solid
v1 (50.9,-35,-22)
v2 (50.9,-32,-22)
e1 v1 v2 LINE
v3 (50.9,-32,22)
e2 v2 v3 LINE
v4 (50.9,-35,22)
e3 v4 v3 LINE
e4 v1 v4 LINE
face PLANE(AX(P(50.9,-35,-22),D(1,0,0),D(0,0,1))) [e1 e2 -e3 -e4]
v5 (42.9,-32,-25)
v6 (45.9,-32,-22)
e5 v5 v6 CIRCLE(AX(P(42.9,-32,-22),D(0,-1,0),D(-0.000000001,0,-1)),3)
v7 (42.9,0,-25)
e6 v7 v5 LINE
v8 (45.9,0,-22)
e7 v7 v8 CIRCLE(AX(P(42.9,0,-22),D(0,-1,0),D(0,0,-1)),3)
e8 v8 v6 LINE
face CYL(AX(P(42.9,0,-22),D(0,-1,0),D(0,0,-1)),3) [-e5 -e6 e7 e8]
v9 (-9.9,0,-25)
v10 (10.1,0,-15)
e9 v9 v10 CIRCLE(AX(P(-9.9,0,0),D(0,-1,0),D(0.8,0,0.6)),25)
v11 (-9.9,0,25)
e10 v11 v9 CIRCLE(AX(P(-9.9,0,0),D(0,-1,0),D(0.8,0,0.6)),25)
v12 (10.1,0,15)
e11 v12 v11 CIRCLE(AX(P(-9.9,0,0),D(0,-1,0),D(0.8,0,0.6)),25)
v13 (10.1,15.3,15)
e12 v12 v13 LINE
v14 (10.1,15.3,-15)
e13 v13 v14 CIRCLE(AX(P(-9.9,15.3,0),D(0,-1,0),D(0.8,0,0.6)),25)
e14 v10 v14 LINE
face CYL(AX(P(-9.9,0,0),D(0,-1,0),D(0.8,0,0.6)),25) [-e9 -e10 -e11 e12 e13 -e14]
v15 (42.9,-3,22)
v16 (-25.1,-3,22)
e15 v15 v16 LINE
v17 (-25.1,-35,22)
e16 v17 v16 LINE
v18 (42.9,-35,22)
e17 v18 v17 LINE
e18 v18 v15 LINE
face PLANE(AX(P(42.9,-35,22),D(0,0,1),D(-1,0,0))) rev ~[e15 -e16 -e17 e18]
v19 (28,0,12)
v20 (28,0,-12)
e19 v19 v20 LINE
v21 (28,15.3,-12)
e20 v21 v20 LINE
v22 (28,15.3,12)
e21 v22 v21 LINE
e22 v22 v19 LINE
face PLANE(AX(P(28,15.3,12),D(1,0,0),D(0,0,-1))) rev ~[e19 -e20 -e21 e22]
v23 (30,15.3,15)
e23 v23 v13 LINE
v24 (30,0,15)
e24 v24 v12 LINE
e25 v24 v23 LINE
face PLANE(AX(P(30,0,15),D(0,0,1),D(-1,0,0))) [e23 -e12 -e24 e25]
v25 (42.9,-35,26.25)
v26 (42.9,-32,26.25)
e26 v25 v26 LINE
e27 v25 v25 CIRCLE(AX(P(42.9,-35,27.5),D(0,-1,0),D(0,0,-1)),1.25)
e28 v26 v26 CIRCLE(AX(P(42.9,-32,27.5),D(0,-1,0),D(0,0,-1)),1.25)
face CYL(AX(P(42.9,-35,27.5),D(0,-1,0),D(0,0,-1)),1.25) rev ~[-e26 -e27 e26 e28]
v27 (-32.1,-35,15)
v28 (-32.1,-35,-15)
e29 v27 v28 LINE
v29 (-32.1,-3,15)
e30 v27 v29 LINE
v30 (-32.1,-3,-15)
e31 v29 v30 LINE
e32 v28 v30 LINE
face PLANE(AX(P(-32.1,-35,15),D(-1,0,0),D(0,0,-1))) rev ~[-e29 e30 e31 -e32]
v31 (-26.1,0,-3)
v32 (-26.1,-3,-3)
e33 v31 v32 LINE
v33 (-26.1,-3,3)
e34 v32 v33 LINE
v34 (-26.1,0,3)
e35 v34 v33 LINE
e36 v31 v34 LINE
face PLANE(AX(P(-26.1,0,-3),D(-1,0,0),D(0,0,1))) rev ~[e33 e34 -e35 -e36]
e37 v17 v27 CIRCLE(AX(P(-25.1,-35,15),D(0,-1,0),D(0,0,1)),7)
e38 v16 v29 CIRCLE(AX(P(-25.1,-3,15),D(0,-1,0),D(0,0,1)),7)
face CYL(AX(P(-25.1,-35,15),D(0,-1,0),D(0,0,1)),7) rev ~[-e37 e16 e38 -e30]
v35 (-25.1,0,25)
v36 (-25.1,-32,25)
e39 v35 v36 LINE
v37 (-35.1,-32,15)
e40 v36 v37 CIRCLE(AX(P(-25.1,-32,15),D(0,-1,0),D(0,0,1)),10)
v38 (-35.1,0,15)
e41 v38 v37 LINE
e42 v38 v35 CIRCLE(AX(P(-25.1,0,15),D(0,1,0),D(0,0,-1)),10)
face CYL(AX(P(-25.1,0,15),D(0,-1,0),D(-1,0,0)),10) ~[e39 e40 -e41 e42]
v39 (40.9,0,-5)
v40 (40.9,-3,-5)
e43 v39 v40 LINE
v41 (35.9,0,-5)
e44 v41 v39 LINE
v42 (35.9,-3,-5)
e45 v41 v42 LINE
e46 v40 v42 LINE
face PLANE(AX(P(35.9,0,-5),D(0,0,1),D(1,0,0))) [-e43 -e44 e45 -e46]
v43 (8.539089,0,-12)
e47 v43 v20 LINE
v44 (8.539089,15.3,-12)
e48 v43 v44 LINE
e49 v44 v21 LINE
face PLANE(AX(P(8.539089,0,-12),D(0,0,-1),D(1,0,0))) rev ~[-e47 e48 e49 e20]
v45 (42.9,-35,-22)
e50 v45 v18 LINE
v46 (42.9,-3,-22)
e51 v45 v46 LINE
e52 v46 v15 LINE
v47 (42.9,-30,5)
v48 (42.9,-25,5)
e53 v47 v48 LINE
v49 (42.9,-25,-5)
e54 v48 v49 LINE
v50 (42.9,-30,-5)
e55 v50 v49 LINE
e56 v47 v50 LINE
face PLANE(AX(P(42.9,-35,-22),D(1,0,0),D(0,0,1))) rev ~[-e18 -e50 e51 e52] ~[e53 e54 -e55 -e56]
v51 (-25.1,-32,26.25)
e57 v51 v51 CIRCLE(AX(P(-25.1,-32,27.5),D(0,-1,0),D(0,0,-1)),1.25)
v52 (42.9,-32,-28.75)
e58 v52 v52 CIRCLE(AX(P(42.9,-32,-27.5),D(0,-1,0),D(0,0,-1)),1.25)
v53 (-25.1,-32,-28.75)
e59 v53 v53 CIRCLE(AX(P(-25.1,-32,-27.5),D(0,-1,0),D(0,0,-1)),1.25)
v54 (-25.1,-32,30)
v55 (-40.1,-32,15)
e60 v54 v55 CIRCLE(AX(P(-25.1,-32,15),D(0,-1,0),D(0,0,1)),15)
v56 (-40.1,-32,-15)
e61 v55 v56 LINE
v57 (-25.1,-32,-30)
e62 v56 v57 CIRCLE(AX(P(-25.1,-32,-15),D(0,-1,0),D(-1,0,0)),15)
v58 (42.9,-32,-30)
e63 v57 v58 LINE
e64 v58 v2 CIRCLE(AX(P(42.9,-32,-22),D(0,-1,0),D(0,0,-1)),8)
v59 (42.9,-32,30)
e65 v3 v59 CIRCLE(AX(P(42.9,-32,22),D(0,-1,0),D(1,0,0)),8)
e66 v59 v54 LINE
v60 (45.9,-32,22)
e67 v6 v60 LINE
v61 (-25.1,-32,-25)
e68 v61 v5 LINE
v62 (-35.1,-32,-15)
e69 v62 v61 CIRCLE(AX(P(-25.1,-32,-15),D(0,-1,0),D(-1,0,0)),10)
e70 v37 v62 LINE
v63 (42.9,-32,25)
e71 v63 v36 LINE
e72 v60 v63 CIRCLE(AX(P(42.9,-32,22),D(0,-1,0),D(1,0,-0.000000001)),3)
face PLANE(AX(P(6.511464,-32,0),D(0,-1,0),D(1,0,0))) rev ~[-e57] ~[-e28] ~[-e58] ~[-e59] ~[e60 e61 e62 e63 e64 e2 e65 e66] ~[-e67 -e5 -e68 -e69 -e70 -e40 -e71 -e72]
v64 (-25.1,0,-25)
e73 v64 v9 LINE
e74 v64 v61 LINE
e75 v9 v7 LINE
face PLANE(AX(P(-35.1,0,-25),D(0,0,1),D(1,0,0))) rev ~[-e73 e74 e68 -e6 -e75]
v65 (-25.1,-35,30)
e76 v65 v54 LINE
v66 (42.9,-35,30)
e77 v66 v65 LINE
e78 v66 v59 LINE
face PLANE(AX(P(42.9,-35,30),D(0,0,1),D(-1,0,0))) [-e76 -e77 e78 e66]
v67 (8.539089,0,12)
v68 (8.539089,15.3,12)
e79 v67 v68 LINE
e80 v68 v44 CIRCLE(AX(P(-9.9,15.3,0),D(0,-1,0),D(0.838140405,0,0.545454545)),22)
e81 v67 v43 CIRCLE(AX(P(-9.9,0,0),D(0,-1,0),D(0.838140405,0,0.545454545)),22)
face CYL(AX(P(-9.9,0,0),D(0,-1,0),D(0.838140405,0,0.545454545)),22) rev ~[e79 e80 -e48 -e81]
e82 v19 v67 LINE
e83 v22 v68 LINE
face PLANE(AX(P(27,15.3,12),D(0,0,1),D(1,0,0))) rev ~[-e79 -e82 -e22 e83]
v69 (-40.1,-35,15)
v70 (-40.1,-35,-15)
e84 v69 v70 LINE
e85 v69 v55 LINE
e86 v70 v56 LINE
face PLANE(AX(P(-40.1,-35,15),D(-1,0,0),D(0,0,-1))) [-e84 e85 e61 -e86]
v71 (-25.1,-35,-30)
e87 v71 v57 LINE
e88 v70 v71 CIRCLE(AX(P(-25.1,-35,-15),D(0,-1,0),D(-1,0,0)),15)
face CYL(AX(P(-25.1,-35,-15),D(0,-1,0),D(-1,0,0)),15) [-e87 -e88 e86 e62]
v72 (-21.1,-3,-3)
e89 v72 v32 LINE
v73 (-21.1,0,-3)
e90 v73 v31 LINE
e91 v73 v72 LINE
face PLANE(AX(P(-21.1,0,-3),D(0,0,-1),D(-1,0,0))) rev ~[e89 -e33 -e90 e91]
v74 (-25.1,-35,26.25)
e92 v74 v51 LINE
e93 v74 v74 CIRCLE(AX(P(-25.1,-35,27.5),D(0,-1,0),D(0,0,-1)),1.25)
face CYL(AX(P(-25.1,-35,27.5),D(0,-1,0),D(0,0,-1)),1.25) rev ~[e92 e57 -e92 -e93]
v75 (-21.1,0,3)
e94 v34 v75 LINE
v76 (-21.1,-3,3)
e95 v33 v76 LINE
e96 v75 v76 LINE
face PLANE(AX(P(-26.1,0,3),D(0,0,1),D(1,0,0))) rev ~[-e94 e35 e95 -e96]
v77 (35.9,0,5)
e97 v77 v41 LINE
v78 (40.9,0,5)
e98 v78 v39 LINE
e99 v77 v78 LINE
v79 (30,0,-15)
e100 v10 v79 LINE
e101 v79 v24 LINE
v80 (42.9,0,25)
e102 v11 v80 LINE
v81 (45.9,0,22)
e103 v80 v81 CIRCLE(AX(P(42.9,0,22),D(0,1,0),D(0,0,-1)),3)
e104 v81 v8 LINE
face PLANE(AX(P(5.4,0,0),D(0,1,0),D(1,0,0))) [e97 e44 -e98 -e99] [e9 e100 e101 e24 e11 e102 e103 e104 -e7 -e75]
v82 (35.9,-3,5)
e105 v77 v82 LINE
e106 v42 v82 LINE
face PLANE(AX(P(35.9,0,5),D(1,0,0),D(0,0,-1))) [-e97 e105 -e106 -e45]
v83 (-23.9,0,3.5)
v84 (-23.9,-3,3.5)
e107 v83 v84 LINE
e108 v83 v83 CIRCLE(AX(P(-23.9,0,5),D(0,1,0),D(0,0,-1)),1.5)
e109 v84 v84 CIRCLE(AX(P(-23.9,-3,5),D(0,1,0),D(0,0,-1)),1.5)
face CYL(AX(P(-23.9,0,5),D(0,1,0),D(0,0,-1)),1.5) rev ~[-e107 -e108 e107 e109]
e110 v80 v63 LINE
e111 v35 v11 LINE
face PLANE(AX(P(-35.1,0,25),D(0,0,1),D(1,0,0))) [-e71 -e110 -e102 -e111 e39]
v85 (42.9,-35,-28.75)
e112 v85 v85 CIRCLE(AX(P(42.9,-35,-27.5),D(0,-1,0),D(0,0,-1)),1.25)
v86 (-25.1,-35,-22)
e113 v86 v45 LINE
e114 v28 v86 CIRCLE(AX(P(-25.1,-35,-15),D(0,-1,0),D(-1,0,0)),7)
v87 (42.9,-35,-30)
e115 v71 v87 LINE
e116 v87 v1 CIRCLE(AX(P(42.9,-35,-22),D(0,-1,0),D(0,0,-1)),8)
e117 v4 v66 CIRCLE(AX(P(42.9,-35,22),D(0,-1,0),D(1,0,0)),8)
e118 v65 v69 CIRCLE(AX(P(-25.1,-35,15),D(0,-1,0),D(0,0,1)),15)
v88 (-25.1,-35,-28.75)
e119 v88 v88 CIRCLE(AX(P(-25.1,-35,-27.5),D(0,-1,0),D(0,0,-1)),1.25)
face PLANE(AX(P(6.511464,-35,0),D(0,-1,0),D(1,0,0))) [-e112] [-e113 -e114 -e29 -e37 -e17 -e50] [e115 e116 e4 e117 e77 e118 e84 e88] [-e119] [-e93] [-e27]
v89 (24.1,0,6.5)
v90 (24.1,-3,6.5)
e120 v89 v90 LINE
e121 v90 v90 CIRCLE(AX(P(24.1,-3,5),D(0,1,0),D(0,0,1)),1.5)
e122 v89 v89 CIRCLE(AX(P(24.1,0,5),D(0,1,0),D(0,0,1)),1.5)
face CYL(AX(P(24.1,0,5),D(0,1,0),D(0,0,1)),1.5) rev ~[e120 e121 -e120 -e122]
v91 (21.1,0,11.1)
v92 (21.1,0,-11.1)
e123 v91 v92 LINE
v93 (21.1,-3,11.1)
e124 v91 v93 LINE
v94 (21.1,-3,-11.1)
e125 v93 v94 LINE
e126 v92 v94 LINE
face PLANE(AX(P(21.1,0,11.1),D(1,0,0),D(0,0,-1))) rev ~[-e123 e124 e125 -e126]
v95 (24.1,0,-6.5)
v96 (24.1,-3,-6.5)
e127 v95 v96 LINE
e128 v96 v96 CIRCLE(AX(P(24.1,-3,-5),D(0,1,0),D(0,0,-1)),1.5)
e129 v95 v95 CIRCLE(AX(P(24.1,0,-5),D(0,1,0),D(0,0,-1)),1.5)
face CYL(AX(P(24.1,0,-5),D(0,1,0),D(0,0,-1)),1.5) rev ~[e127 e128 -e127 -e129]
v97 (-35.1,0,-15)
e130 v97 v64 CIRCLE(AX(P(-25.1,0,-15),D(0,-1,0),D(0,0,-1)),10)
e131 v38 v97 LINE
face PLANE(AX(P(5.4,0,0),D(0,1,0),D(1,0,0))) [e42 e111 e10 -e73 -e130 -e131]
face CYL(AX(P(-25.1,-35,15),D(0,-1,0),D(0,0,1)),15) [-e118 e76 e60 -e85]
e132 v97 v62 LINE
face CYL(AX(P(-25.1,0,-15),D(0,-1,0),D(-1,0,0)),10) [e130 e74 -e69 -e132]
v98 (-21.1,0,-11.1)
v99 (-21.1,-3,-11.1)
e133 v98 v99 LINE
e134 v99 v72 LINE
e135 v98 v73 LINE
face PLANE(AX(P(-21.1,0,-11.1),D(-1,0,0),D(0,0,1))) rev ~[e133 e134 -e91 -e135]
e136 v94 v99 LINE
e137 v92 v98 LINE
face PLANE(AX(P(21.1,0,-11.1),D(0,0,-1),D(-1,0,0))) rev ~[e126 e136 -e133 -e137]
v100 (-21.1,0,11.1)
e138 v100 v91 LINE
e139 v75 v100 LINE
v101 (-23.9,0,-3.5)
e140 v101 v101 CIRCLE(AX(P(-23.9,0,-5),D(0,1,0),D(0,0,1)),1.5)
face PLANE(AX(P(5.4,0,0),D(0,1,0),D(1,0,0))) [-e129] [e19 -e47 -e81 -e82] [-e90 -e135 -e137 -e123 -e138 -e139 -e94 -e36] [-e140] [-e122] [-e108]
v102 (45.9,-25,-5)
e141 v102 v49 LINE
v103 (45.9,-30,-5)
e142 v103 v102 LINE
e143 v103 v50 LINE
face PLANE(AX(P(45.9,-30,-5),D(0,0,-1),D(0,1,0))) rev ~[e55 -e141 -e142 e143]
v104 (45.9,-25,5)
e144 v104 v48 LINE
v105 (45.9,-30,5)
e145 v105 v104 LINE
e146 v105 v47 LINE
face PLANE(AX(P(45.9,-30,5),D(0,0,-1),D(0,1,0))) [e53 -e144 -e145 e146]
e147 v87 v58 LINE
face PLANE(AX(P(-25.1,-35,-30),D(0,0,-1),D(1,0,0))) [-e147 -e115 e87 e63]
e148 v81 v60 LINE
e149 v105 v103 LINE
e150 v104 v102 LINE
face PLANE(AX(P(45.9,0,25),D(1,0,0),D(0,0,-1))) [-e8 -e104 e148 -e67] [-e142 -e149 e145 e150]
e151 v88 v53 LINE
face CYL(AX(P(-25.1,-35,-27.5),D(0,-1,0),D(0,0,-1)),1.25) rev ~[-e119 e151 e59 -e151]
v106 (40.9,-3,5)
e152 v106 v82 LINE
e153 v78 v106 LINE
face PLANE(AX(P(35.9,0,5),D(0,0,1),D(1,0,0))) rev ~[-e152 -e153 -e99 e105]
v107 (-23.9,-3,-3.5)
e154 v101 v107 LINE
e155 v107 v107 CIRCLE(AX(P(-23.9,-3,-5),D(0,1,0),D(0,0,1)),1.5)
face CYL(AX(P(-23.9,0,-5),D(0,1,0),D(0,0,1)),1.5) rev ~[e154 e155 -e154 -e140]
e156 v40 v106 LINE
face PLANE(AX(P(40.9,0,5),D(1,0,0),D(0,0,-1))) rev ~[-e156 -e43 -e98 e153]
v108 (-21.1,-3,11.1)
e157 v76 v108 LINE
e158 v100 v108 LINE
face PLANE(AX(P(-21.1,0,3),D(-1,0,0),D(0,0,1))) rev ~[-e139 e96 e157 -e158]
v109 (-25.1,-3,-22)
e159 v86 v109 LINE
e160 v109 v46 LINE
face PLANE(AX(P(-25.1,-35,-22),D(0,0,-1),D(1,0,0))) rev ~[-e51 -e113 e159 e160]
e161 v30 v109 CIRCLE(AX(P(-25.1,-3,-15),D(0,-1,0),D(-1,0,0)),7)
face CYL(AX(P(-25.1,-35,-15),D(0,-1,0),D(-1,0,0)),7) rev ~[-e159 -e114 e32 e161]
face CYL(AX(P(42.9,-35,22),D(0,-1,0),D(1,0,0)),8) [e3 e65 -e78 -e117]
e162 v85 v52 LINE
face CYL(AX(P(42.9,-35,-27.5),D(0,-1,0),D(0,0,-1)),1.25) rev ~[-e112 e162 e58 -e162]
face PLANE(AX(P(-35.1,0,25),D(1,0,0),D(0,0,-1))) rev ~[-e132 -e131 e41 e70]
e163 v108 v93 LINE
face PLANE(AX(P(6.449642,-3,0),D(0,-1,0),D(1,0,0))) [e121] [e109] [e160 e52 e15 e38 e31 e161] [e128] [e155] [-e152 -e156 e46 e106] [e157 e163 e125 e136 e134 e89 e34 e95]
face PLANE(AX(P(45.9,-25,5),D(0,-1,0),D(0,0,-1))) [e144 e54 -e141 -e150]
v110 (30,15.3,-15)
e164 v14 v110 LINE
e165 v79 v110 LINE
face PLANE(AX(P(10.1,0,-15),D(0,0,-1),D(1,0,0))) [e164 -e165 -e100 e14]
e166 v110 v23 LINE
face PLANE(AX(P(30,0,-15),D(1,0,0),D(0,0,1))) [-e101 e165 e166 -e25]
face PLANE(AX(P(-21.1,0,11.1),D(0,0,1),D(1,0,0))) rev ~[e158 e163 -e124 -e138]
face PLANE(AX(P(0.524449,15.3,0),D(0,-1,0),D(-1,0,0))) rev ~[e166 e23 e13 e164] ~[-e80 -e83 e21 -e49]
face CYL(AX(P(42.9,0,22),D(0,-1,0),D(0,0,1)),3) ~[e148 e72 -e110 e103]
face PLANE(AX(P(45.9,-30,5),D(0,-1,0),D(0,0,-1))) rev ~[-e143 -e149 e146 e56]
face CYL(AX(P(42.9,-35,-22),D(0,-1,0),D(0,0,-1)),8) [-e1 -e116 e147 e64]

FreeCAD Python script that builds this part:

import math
import FreeCAD as App
import Part
import Sketcher
Q = App.Units.Quantity


def edges_at(feature, points):
    """Names of the edges that pass closest to the given points."""
    edges = feature.Shape.Edges
    near = lambda p: min(range(len(edges)), key=lambda i: edges[i].distToShape(Part.Vertex(*p))[0])
    return sorted({f"Edge{near(p) + 1}" for p in points})

doc = App.newDocument("Part")
params = doc.addObject("Spreadsheet::Sheet", "Params")
for row, (alias, value) in enumerate([
    ("sketch1_diameter", "3 mm"),
    ("sketch1_width", "81 mm"),
    ("sketch1_width2", "5 mm"),
    ("sketch1_height", "50 mm"),
    ("sketch1_height2", "6 mm"),
    ("pad1_length", "35 mm"),
    ("fillet_radius", "10 mm"),
    ("fillet2_radius", "3 mm"),
    ("sketch2_radius", "7 mm"),
    ("sketch2_width", "68 mm"),
    ("sketch2_height", "30 mm"),
    ("pocket1_length", "32 mm"),
    ("sketch3_radius", "25 mm"),
    ("sketch3_radius2", "22 mm"),
    ("sketch3_height", "30 mm"),
    ("sketch3_height2", "24 mm"),
    ("sketch3_width", "19.9 mm"),
    ("pad2_length", "15.3 mm"),
    ("sketch4_width", "1 mm"),
    ("sketch4_height", "24 mm"),
    ("pocket2_length", "15.3 mm"),
    ("sketch5_width", "5 mm"),
    ("sketch5_height", "10 mm"),
    ("pocket3_length", "16.3 mm"),
    ("sketch6_radius", "15 mm"),
    ("sketch6_radius2", "8 mm"),
    ("sketch6_radius3", "3 mm"),
    ("sketch6_diameter", "2.5 mm"),
    ("sketch6_width", "68 mm"),
    ("pad3_length", "3 mm"),
    ("sketch7_width", "5 mm"),
    ("sketch7_height", "10 mm"),
    ("pocket4_length", "10 mm"),
], start=1):
    params.set(f"A{row}", alias)
    params.set(f"B{row}", "=" + value)
    params.setAlias(f"B{row}", alias)

body = doc.addObject("PartDesign::Body", "Body")

sketch1 = body.newObject("Sketcher::SketchObject", "Sketch")
sketch1.AttachmentSupport = (doc.getObject("XZ_Plane"), [""])
sketch1.MapMode = "FlatFace"
sketch1.addGeometry(Part.LineSegment(App.Vector(-35.1, -25, 0), App.Vector(-35.1, 25, 0)), False)
sketch1.addGeometry(Part.LineSegment(App.Vector(-35.1, 25, 0), App.Vector(45.9, 25, 0)), False)
sketch1.addGeometry(Part.LineSegment(App.Vector(45.9, 25, 0), App.Vector(45.9, -25, 0)), False)
sketch1.addGeometry(Part.LineSegment(App.Vector(45.9, -25, 0), App.Vector(-35.1, -25, 0)), False)
sketch1.addGeometry(Part.Circle(App.Vector(-23.9, 5, 0), App.Vector(0, 0, 1), 1.5), False)
sketch1.addGeometry(Part.Circle(App.Vector(24.1, 5, 0), App.Vector(0, 0, 1), 1.5), False)
sketch1.addGeometry(Part.Circle(App.Vector(-23.9, -5, 0), App.Vector(0, 0, 1), 1.5), False)
sketch1.addGeometry(Part.LineSegment(App.Vector(-26.1, -3, 0), App.Vector(-21.1, -3, 0)), False)
sketch1.addGeometry(Part.LineSegment(App.Vector(-21.1, -3, 0), App.Vector(-21.1, -11.1, 0)), False)
sketch1.addGeometry(Part.LineSegment(App.Vector(-21.1, -11.1, 0), App.Vector(21.1, -11.1, 0)), False)
sketch1.addGeometry(Part.LineSegment(App.Vector(21.1, -11.1, 0), App.Vector(21.1, 11.1, 0)), False)
sketch1.addGeometry(Part.LineSegment(App.Vector(21.1, 11.1, 0), App.Vector(-21.1, 11.1, 0)), False)
sketch1.addGeometry(Part.LineSegment(App.Vector(-21.1, 11.1, 0), App.Vector(-21.1, 3, 0)), False)
sketch1.addGeometry(Part.LineSegment(App.Vector(-21.1, 3, 0), App.Vector(-26.1, 3, 0)), False)
sketch1.addGeometry(Part.LineSegment(App.Vector(-26.1, 3, 0), App.Vector(-26.1, -3, 0)), False)
sketch1.addGeometry(Part.Circle(App.Vector(24.1, -5, 0), App.Vector(0, 0, 1), 1.5), False)
sketch1.addConstraint(Sketcher.Constraint("Coincident", 0, 2, 1, 1))
sketch1.addConstraint(Sketcher.Constraint("Coincident", 1, 2, 2, 1))
sketch1.addConstraint(Sketcher.Constraint("Coincident", 2, 2, 3, 1))
sketch1.addConstraint(Sketcher.Constraint("Coincident", 3, 2, 0, 1))
sketch1.addConstraint(Sketcher.Constraint("Coincident", 7, 2, 8, 1))
sketch1.addConstraint(Sketcher.Constraint("Coincident", 8, 2, 9, 1))
sketch1.addConstraint(Sketcher.Constraint("Coincident", 9, 2, 10, 1))
sketch1.addConstraint(Sketcher.Constraint("Coincident", 10, 2, 11, 1))
sketch1.addConstraint(Sketcher.Constraint("Coincident", 11, 2, 12, 1))
sketch1.addConstraint(Sketcher.Constraint("Coincident", 12, 2, 13, 1))
sketch1.addConstraint(Sketcher.Constraint("Coincident", 13, 2, 14, 1))
sketch1.addConstraint(Sketcher.Constraint("Coincident", 14, 2, 7, 1))
sketch1.addConstraint(Sketcher.Constraint("Vertical", 0))
sketch1.addConstraint(Sketcher.Constraint("Horizontal", 1))
sketch1.addConstraint(Sketcher.Constraint("Vertical", 2))
sketch1.addConstraint(Sketcher.Constraint("Horizontal", 3))
sketch1.addConstraint(Sketcher.Constraint("Horizontal", 7))
sketch1.addConstraint(Sketcher.Constraint("Vertical", 8))
sketch1.addConstraint(Sketcher.Constraint("Horizontal", 9))
sketch1.addConstraint(Sketcher.Constraint("Vertical", 10))
sketch1.addConstraint(Sketcher.Constraint("Horizontal", 11))
sketch1.addConstraint(Sketcher.Constraint("Vertical", 12))
sketch1.addConstraint(Sketcher.Constraint("Horizontal", 13))
sketch1.addConstraint(Sketcher.Constraint("Vertical", 14))
sketch1.addConstraint(Sketcher.Constraint("Equal", 4, 5))
sketch1.addConstraint(Sketcher.Constraint("Equal", 5, 6))
sketch1.addConstraint(Sketcher.Constraint("Equal", 6, 15))
sketch1.addConstraint(Sketcher.Constraint("Symmetric", 8, 2, 10, 2, -1, 1))
sketch1.addConstraint(Sketcher.Constraint("Symmetric", 4, 3, 6, 3, -1))
sketch1.addConstraint(Sketcher.Constraint("Symmetric", 5, 3, 15, 3, -1))
sketch1.addConstraint(Sketcher.Constraint("Symmetric", 7, 2, 12, 2, -1))
sketch1.addConstraint(Sketcher.Constraint("Horizontal", 4, 3, 5, 3))
sketch1.addConstraint(Sketcher.Constraint("Diameter", 4, Q("3 mm")))
sketch1.addConstraint(Sketcher.Constraint("DistanceX", 1, 1, 1, 2, Q("81 mm")))
sketch1.addConstraint(Sketcher.Constraint("DistanceX", 7, 1, 7, 2, Q("5 mm")))
sketch1.addConstraint(Sketcher.Constraint("DistanceY", 0, 1, 0, 2, Q("50 mm")))
sketch1.addConstraint(Sketcher.Constraint("DistanceY", 14, 2, 14, 1, Q("6 mm")))
sketch1.addConstraint(Sketcher.Constraint("DistanceX", 9, 1, 9, 2, Q("42.2 mm")))
sketch1.addConstraint(Sketcher.Constraint("DistanceY", 8, 2, 8, 1, Q("8.1 mm")))
sketch1.addConstraint(Sketcher.Constraint("DistanceY", -1, 1, 4, 3, Q("5 mm")))
sketch1.addConstraint(Sketcher.Constraint("DistanceY", -1, 1, 0, 2, Q("25 mm")))
sketch1.addConstraint(Sketcher.Constraint("DistanceX", 4, 3, 5, 3, Q("48 mm")))
sketch1.addConstraint(Sketcher.Constraint("DistanceX", 3, 2, 7, 2, Q("14 mm")))
sketch1.addConstraint(Sketcher.Constraint("DistanceX", 9, 2, 15, 3, Q("3 mm")))
sketch1.setExpression("Constraints[32]", "Params.sketch1_diameter")
sketch1.setExpression("Constraints[33]", "Params.sketch1_width")
sketch1.setExpression("Constraints[34]", "Params.sketch1_width2")
sketch1.setExpression("Constraints[35]", "Params.sketch1_height")
sketch1.setExpression("Constraints[36]", "Params.sketch1_height2")
pad1 = body.newObject("PartDesign::Pad", "Pad")
pad1.Profile = sketch1
pad1.setExpression("Length", "Params.pad1_length")
doc.recompute()

fillet = body.newObject("PartDesign::Fillet", "Fillet")
fillet.Base = (pad1, edges_at(pad1, [(-35.1, -17.5, 25), (-35.1, -17.5, -25)]))
fillet.setExpression("Radius", "Params.fillet_radius")
doc.recompute()

fillet2 = body.newObject("PartDesign::Fillet", "Fillet001")
fillet2.Base = (fillet, edges_at(fillet, [(45.9, -17.5, 25), (45.9, -17.5, -25)]))
fillet2.setExpression("Radius", "Params.fillet2_radius")

sketch2 = body.newObject("Sketcher::SketchObject", "Sketch001")
sketch2.AttachmentSupport = (doc.getObject("XZ_Plane"), [""])
sketch2.MapMode = "FlatFace"
sketch2.AttachmentOffset = App.Placement(App.Vector(0, 0, 35), App.Rotation())
sketch2.addGeometry(Part.LineSegment(App.Vector(43, 22, 0), App.Vector(-25, 22, 0)), False)
sketch2.addGeometry(Part.ArcOfCircle(Part.Circle(App.Vector(-25, 15, 0), App.Vector(0, 0, 1), 7), math.radians(90), math.radians(180)), False)
sketch2.addGeometry(Part.LineSegment(App.Vector(-32, 15, 0), App.Vector(-32, -15, 0)), False)
sketch2.addGeometry(Part.ArcOfCircle(Part.Circle(App.Vector(-25, -15, 0), App.Vector(0, 0, 1), 7), math.radians(-180), math.radians(-90)), False)
sketch2.addGeometry(Part.LineSegment(App.Vector(-25, -22, 0), App.Vector(43, -22, 0)), False)
sketch2.addGeometry(Part.LineSegment(App.Vector(43, -22, 0), App.Vector(43, 22, 0)), False)
sketch2.addConstraint(Sketcher.Constraint("Tangent", 0, 2, 1, 1))
sketch2.addConstraint(Sketcher.Constraint("Tangent", 1, 2, 2, 1))
sketch2.addConstraint(Sketcher.Constraint("Tangent", 2, 2, 3, 1))
sketch2.addConstraint(Sketcher.Constraint("Tangent", 3, 2, 4, 1))
sketch2.addConstraint(Sketcher.Constraint("Coincident", 4, 2, 5, 1))
sketch2.addConstraint(Sketcher.Constraint("Coincident", 5, 2, 0, 1))
sketch2.addConstraint(Sketcher.Constraint("Horizontal", 0))
sketch2.addConstraint(Sketcher.Constraint("Vertical", 2))
sketch2.addConstraint(Sketcher.Constraint("Horizontal", 4))
sketch2.addConstraint(Sketcher.Constraint("Vertical", 5))
sketch2.addConstraint(Sketcher.Constraint("Equal", 1, 3))
sketch2.addConstraint(Sketcher.Constraint("Radius", 1, Q("7 mm")))
sketch2.addConstraint(Sketcher.Constraint("DistanceX", 0, 2, 0, 1, Q("68 mm")))
sketch2.addConstraint(Sketcher.Constraint("DistanceY", 2, 2, 2, 1, Q("30 mm")))
sketch2.addConstraint(Sketcher.Constraint("DistanceY", -1, 1, 1, 3, Q("15 mm")))
sketch2.addConstraint(Sketcher.Constraint("DistanceX", 1, 3, -1, 1, Q("25.1 mm")))
sketch2.setExpression("Constraints[11]", "Params.sketch2_radius")
sketch2.setExpression("Constraints[12]", "Params.sketch2_width")
sketch2.setExpression("Constraints[13]", "Params.sketch2_height")
pocket1 = body.newObject("PartDesign::Pocket", "Pocket")
pocket1.Profile = sketch2
pocket1.setExpression("Length", "Params.pocket1_length")

sketch3 = body.newObject("Sketcher::SketchObject", "Sketch002")
sketch3.AttachmentSupport = (doc.getObject("XZ_Plane"), [""])
sketch3.MapMode = "FlatFace"
sketch3.addGeometry(Part.LineSegment(App.Vector(30, -15, 0), App.Vector(10, -15, 0)), False)
sketch3.addGeometry(Part.ArcOfCircle(Part.Circle(App.Vector(-10, 0, 0), App.Vector(0, 0, 1), 25), math.radians(37), math.radians(323)), False)
sketch3.addGeometry(Part.LineSegment(App.Vector(10, 15, 0), App.Vector(30, 15, 0)), False)
sketch3.addGeometry(Part.LineSegment(App.Vector(30, 15, 0), App.Vector(30, -15, 0)), False)
sketch3.addGeometry(Part.LineSegment(App.Vector(9, -12, 0), App.Vector(27, -12, 0)), False)
sketch3.addGeometry(Part.LineSegment(App.Vector(27, -12, 0), App.Vector(27, 12, 0)), False)
sketch3.addGeometry(Part.LineSegment(App.Vector(27, 12, 0), App.Vector(9, 12, 0)), False)
sketch3.addGeometry(Part.ArcOfCircle(Part.Circle(App.Vector(-10, 0, 0), App.Vector(0, 0, 1), 22), math.radians(33), math.radians(327)), False)
sketch3.addConstraint(Sketcher.Constraint("Coincident", 0, 2, 1, 2))
sketch3.addConstraint(Sketcher.Constraint("Coincident", 1, 1, 2, 1))
sketch3.addConstraint(Sketcher.Constraint("Coincident", 2, 2, 3, 1))
sketch3.addConstraint(Sketcher.Constraint("Coincident", 3, 2, 0, 1))
sketch3.addConstraint(Sketcher.Constraint("Coincident", 4, 2, 5, 1))
sketch3.addConstraint(Sketcher.Constraint("Coincident", 5, 2, 6, 1))
sketch3.addConstraint(Sketcher.Constraint("Coincident", 6, 2, 7, 1))
sketch3.addConstraint(Sketcher.Constraint("Coincident", 7, 2, 4, 1))
sketch3.addConstraint(Sketcher.Constraint("Horizontal", 0))
sketch3.addConstraint(Sketcher.Constraint("Horizontal", 2))
sketch3.addConstraint(Sketcher.Constraint("Vertical", 3))
sketch3.addConstraint(Sketcher.Constraint("Horizontal", 4))
sketch3.addConstraint(Sketcher.Constraint("Vertical", 5))
sketch3.addConstraint(Sketcher.Constraint("Horizontal", 6))
sketch3.addConstraint(Sketcher.Constraint("Coincident", 7, 3, 1, 3))
sketch3.addConstraint(Sketcher.Constraint("Symmetric", 0, 2, 1, 1, -1))
sketch3.addConstraint(Sketcher.Constraint("Vertical", 6, 2, 7, 2))
sketch3.addConstraint(Sketcher.Constraint("Radius", 1, Q("25 mm")))
sketch3.addConstraint(Sketcher.Constraint("Radius", 7, Q("22 mm")))
sketch3.addConstraint(Sketcher.Constraint("DistanceY", 3, 2, 3, 1, Q("30 mm")))
sketch3.addConstraint(Sketcher.Constraint("DistanceY", 5, 1, 5, 2, Q("24 mm")))
sketch3.addConstraint(Sketcher.Constraint("DistanceX", 0, 2, 0, 1, Q("19.9 mm")))
sketch3.addConstraint(Sketcher.Constraint("DistanceX", -1, 1, 2, 2, Q("30 mm")))
sketch3.addConstraint(Sketcher.Constraint("DistanceX", -1, 1, 4, 2, Q("27 mm")))
sketch3.setExpression("Constraints[17]", "Params.sketch3_radius")
sketch3.setExpression("Constraints[18]", "Params.sketch3_radius2")
sketch3.setExpression("Constraints[19]", "Params.sketch3_height")
sketch3.setExpression("Constraints[20]", "Params.sketch3_height2")
sketch3.setExpression("Constraints[21]", "Params.sketch3_width")
pad2 = body.newObject("PartDesign::Pad", "Pad001")
pad2.Profile = sketch3
pad2.setExpression("Length", "Params.pad2_length")
pad2.Reversed = True

sketch4 = body.newObject("Sketcher::SketchObject", "Sketch003")
sketch4.AttachmentSupport = (doc.getObject("XZ_Plane"), [""])
sketch4.MapMode = "FlatFace"
sketch4.AttachmentOffset = App.Placement(App.Vector(0, 0, -15.3), App.Rotation())
sketch4.addGeometry(Part.LineSegment(App.Vector(27, -12, 0), App.Vector(27, 12, 0)), False)
sketch4.addGeometry(Part.LineSegment(App.Vector(27, 12, 0), App.Vector(28, 12, 0)), False)
sketch4.addGeometry(Part.LineSegment(App.Vector(28, 12, 0), App.Vector(28, -12, 0)), False)
sketch4.addGeometry(Part.LineSegment(App.Vector(28, -12, 0), App.Vector(27, -12, 0)), False)
sketch4.addConstraint(Sketcher.Constraint("Coincident", 0, 2, 1, 1))
sketch4.addConstraint(Sketcher.Constraint("Coincident", 1, 2, 2, 1))
sketch4.addConstraint(Sketcher.Constraint("Coincident", 2, 2, 3, 1))
sketch4.addConstraint(Sketcher.Constraint("Coincident", 3, 2, 0, 1))
sketch4.addConstraint(Sketcher.Constraint("Vertical", 0))
sketch4.addConstraint(Sketcher.Constraint("Horizontal", 1))
sketch4.addConstraint(Sketcher.Constraint("Vertical", 2))
sketch4.addConstraint(Sketcher.Constraint("Horizontal", 3))
sketch4.addConstraint(Sketcher.Constraint("DistanceX", 1, 1, 1, 2, Q("1 mm")))
sketch4.addConstraint(Sketcher.Constraint("DistanceY", 0, 1, 0, 2, Q("24 mm")))
sketch4.addConstraint(Sketcher.Constraint("DistanceX", -1, 1, 0, 2, Q("27 mm")))
sketch4.addConstraint(Sketcher.Constraint("DistanceY", -1, 1, 0, 2, Q("12 mm")))
sketch4.setExpression("Constraints[8]", "Params.sketch4_width")
sketch4.setExpression("Constraints[9]", "Params.sketch4_height")
pocket2 = body.newObject("PartDesign::Pocket", "Pocket001")
pocket2.Profile = sketch4
pocket2.setExpression("Length", "Params.pocket2_length")
pocket2.Reversed = True

sketch5 = body.newObject("Sketcher::SketchObject", "Sketch004")
sketch5.AttachmentSupport = (doc.getObject("YZ_Plane"), [""])
sketch5.MapMode = "FlatFace"
sketch5.AttachmentOffset = App.Placement(App.Vector(0, 0, 45.9), App.Rotation())
sketch5.addGeometry(Part.LineSegment(App.Vector(-25, 5, 0), App.Vector(-30, 5, 0)), False)
sketch5.addGeometry(Part.LineSegment(App.Vector(-30, 5, 0), App.Vector(-30, -5, 0)), False)
sketch5.addGeometry(Part.LineSegment(App.Vector(-30, -5, 0), App.Vector(-25, -5, 0)), False)
sketch5.addGeometry(Part.LineSegment(App.Vector(-25, -5, 0), App.Vector(-25, 5, 0)), False)
sketch5.addConstraint(Sketcher.Constraint("Coincident", 0, 2, 1, 1))
sketch5.addConstraint(Sketcher.Constraint("Coincident", 1, 2, 2, 1))
sketch5.addConstraint(Sketcher.Constraint("Coincident", 2, 2, 3, 1))
sketch5.addConstraint(Sketcher.Constraint("Coincident", 3, 2, 0, 1))
sketch5.addConstraint(Sketcher.Constraint("Horizontal", 0))
sketch5.addConstraint(Sketcher.Constraint("Vertical", 1))
sketch5.addConstraint(Sketcher.Constraint("Horizontal", 2))
sketch5.addConstraint(Sketcher.Constraint("Vertical", 3))
sketch5.addConstraint(Sketcher.Constraint("DistanceX", 0, 2, 0, 1, Q("5 mm")))
sketch5.addConstraint(Sketcher.Constraint("DistanceY", 1, 2, 1, 1, Q("10 mm")))
sketch5.addConstraint(Sketcher.Constraint("DistanceX", 0, 2, -1, 1, Q("30 mm")))
sketch5.addConstraint(Sketcher.Constraint("DistanceY", -1, 1, 0, 2, Q("5 mm")))
sketch5.setExpression("Constraints[8]", "Params.sketch5_width")
sketch5.setExpression("Constraints[9]", "Params.sketch5_height")
pocket3 = body.newObject("PartDesign::Pocket", "Pocket002")
pocket3.Profile = sketch5
pocket3.setExpression("Length", "Params.pocket3_length")

sketch6 = body.newObject("Sketcher::SketchObject", "Sketch005")
sketch6.AttachmentSupport = (doc.getObject("XZ_Plane"), [""])
sketch6.MapMode = "FlatFace"
sketch6.AttachmentOffset = App.Placement(App.Vector(0, 0, 35), App.Rotation())
sketch6.addGeometry(Part.LineSegment(App.Vector(42.9, 30, 0), App.Vector(-25.1, 30, 0)), False)
sketch6.addGeometry(Part.ArcOfCircle(Part.Circle(App.Vector(-25.1, 15, 0), App.Vector(0, 0, 1), 15), math.radians(90), math.radians(180)), False)
sketch6.addGeometry(Part.LineSegment(App.Vector(-40.1, 15, 0), App.Vector(-40.1, -15, 0)), False)
sketch6.addGeometry(Part.ArcOfCircle(Part.Circle(App.Vector(-25.1, -15, 0), App.Vector(0, 0, 1), 15), math.radians(180), math.radians(270)), False)
sketch6.addGeometry(Part.LineSegment(App.Vector(-25.1, -30, 0), App.Vector(42.9, -30, 0)), False)
sketch6.addGeometry(Part.ArcOfCircle(Part.Circle(App.Vector(42.9, -22, 0), App.Vector(0, 0, 1), 8), math.radians(-90), math.radians(0)), False)
sketch6.addGeometry(Part.LineSegment(App.Vector(50.9, -22, 0), App.Vector(50.9, 22, 0)), False)
sketch6.addGeometry(Part.ArcOfCircle(Part.Circle(App.Vector(42.9, 22, 0), App.Vector(0, 0, 1), 8), math.radians(0), math.radians(90)), False)
sketch6.addGeometry(Part.Circle(App.Vector(-25.1, -27.5, 0), App.Vector(0, 0, 1), 1.2), False)
sketch6.addGeometry(Part.Circle(App.Vector(42.9, -27.5, 0), App.Vector(0, 0, 1), 1.2), False)
sketch6.addGeometry(Part.Circle(App.Vector(-25.1, 27.5, 0), App.Vector(0, 0, 1), 1.2), False)
sketch6.addGeometry(Part.LineSegment(App.Vector(45.9, 22, 0), App.Vector(45.9, -22, 0)), False)
sketch6.addGeometry(Part.ArcOfCircle(Part.Circle(App.Vector(42.9, -22, 0), App.Vector(0, 0, 1), 3), math.radians(-90), math.radians(0)), False)
sketch6.addGeometry(Part.LineSegment(App.Vector(42.9, -25, 0), App.Vector(-25.1, -25, 0)), False)
sketch6.addGeometry(Part.ArcOfCircle(Part.Circle(App.Vector(-25.1, -15, 0), App.Vector(0, 0, 1), 10), math.radians(180), math.radians(270)), False)
sketch6.addGeometry(Part.LineSegment(App.Vector(-35.1, -15, 0), App.Vector(-35.1, 15, 0)), False)
sketch6.addGeometry(Part.ArcOfCircle(Part.Circle(App.Vector(-25.1, 15, 0), App.Vector(0, 0, 1), 10), math.radians(90), math.radians(180)), False)
sketch6.addGeometry(Part.LineSegment(App.Vector(-25.1, 25, 0), App.Vector(42.9, 25, 0)), False)
sketch6.addGeometry(Part.ArcOfCircle(Part.Circle(App.Vector(42.9, 22, 0), App.Vector(0, 0, 1), 3), math.radians(0), math.radians(90)), False)
sketch6.addGeometry(Part.Circle(App.Vector(42.9, 27.5, 0), App.Vector(0, 0, 1), 1.2), False)
sketch6.addConstraint(Sketcher.Constraint("Tangent", 0, 2, 1, 1))
sketch6.addConstraint(Sketcher.Constraint("Tangent", 1, 2, 2, 1))
sketch6.addConstraint(Sketcher.Constraint("Tangent", 2, 2, 3, 1))
sketch6.addConstraint(Sketcher.Constraint("Tangent", 3, 2, 4, 1))
sketch6.addConstraint(Sketcher.Constraint("Tangent", 4, 2, 5, 1))
sketch6.addConstraint(Sketcher.Constraint("Tangent", 5, 2, 6, 1))
sketch6.addConstraint(Sketcher.Constraint("Tangent", 6, 2, 7, 1))
sketch6.addConstraint(Sketcher.Constraint("Tangent", 7, 2, 0, 1))
sketch6.addConstraint(Sketcher.Constraint("Tangent", 11, 2, 12, 2))
sketch6.addConstraint(Sketcher.Constraint("Tangent", 12, 1, 13, 1))
sketch6.addConstraint(Sketcher.Constraint("Tangent", 13, 2, 14, 2))
sketch6.addConstraint(Sketcher.Constraint("Tangent", 14, 1, 15, 1))
sketch6.addConstraint(Sketcher.Constraint("Tangent", 15, 2, 16, 2))
sketch6.addConstraint(Sketcher.Constraint("Tangent", 16, 1, 17, 1))
sketch6.addConstraint(Sketcher.Constraint("Tangent", 17, 2, 18, 2))
sketch6.addConstraint(Sketcher.Constraint("Tangent", 18, 1, 11, 1))
sketch6.addConstraint(Sketcher.Constraint("Horizontal", 0))
sketch6.addConstraint(Sketcher.Constraint("Vertical", 2))
sketch6.addConstraint(Sketcher.Constraint("Horizontal", 4))
sketch6.addConstraint(Sketcher.Constraint("Vertical", 6))
sketch6.addConstraint(Sketcher.Constraint("Vertical", 11))
sketch6.addConstraint(Sketcher.Constraint("Horizontal", 13))
sketch6.addConstraint(Sketcher.Constraint("Vertical", 15))
sketch6.addConstraint(Sketcher.Constraint("Horizontal", 17))
sketch6.addConstraint(Sketcher.Constraint("Coincident", 12, 3, 5, 3))
sketch6.addConstraint(Sketcher.Constraint("Coincident", 14, 3, 3, 3))
sketch6.addConstraint(Sketcher.Constraint("Coincident", 16, 3, 1, 3))
sketch6.addConstraint(Sketcher.Constraint("Equal", 1, 3))
sketch6.addConstraint(Sketcher.Constraint("Equal", 5, 7))
sketch6.addConstraint(Sketcher.Constraint("Equal", 8, 9))
sketch6.addConstraint(Sketcher.Constraint("Equal", 9, 10))
sketch6.addConstraint(Sketcher.Constraint("Equal", 12, 18))
sketch6.addConstraint(Sketcher.Constraint("Equal", 10, 19))
sketch6.addConstraint(Sketcher.Constraint("Symmetric", 8, 3, 10, 3, -1))
sketch6.addConstraint(Sketcher.Constraint("Symmetric", 9, 3, 19, 3, -1))
sketch6.addConstraint(Sketcher.Constraint("Horizontal", 8, 3, 9, 3))
sketch6.addConstraint(Sketcher.Constraint("Vertical", 3, 3, 8, 3))
sketch6.addConstraint(Sketcher.Constraint("Vertical", 7, 3, 9, 3))
sketch6.addConstraint(Sketcher.Constraint("Radius", 1, Q("15 mm")))
sketch6.addConstraint(Sketcher.Constraint("Radius", 5, Q("8 mm")))
sketch6.addConstraint(Sketcher.Constraint("Radius", 12, Q("3 mm")))
sketch6.addConstraint(Sketcher.Constraint("Diameter", 8, Q("2.5 mm")))
sketch6.addConstraint(Sketcher.Constraint("DistanceX", 0, 2, 0, 1, Q("68 mm")))
sketch6.addConstraint(Sketcher.Constraint("DistanceY", 2, 2, 2, 1, Q("30 mm")))
sketch6.addConstraint(Sketcher.Constraint("DistanceY", -1, 1, 1, 3, Q("15 mm")))
sketch6.addConstraint(Sketcher.Constraint("DistanceY", 8, 3, 10, 3, Q("55 mm")))
sketch6.addConstraint(Sketcher.Constraint("DistanceX", 1, 3, -1, 1, Q("25.1 mm")))
sketch6.setExpression("Constraints[38]", "Params.sketch6_radius")
sketch6.setExpression("Constraints[39]", "Params.sketch6_radius2")
sketch6.setExpression("Constraints[40]", "Params.sketch6_radius3")
sketch6.setExpression("Constraints[41]", "Params.sketch6_diameter")
sketch6.setExpression("Constraints[42]", "Params.sketch6_width")
pad3 = body.newObject("PartDesign::Pad", "Pad002")
pad3.Profile = sketch6
pad3.setExpression("Length", "Params.pad3_length")
pad3.Reversed = True

sketch7 = body.newObject("Sketcher::SketchObject", "Sketch006")
sketch7.AttachmentSupport = (doc.getObject("XZ_Plane"), [""])
sketch7.MapMode = "FlatFace"
sketch7.addGeometry(Part.LineSegment(App.Vector(36, -5, 0), App.Vector(36, 5, 0)), False)
sketch7.addGeometry(Part.LineSegment(App.Vector(36, 5, 0), App.Vector(41, 5, 0)), False)
sketch7.addGeometry(Part.LineSegment(App.Vector(41, 5, 0), App.Vector(41, -5, 0)), False)
sketch7.addGeometry(Part.LineSegment(App.Vector(41, -5, 0), App.Vector(36, -5, 0)), False)
sketch7.addConstraint(Sketcher.Constraint("Coincident", 0, 2, 1, 1))
sketch7.addConstraint(Sketcher.Constraint("Coincident", 1, 2, 2, 1))
sketch7.addConstraint(Sketcher.Constraint("Coincident", 2, 2, 3, 1))
sketch7.addConstraint(Sketcher.Constraint("Coincident", 3, 2, 0, 1))
sketch7.addConstraint(Sketcher.Constraint("Vertical", 0))
sketch7.addConstraint(Sketcher.Constraint("Horizontal", 1))
sketch7.addConstraint(Sketcher.Constraint("Vertical", 2))
sketch7.addConstraint(Sketcher.Constraint("Horizontal", 3))
sketch7.addConstraint(Sketcher.Constraint("DistanceX", 1, 1, 1, 2, Q("5 mm")))
sketch7.addConstraint(Sketcher.Constraint("DistanceY", 0, 1, 0, 2, Q("10 mm")))
sketch7.addConstraint(Sketcher.Constraint("DistanceY", -1, 1, 0, 2, Q("5 mm")))
sketch7.addConstraint(Sketcher.Constraint("DistanceX", -1, 1, 0, 2, Q("35.9 mm")))
sketch7.setExpression("Constraints[8]", "Params.sketch7_width")
sketch7.setExpression("Constraints[9]", "Params.sketch7_height")
pocket4 = body.newObject("PartDesign::Pocket", "Pocket003")
pocket4.Profile = sketch7
pocket4.setExpression("Length", "Params.pocket4_length")
pocket4.Reversed = True

doc.recompute()
